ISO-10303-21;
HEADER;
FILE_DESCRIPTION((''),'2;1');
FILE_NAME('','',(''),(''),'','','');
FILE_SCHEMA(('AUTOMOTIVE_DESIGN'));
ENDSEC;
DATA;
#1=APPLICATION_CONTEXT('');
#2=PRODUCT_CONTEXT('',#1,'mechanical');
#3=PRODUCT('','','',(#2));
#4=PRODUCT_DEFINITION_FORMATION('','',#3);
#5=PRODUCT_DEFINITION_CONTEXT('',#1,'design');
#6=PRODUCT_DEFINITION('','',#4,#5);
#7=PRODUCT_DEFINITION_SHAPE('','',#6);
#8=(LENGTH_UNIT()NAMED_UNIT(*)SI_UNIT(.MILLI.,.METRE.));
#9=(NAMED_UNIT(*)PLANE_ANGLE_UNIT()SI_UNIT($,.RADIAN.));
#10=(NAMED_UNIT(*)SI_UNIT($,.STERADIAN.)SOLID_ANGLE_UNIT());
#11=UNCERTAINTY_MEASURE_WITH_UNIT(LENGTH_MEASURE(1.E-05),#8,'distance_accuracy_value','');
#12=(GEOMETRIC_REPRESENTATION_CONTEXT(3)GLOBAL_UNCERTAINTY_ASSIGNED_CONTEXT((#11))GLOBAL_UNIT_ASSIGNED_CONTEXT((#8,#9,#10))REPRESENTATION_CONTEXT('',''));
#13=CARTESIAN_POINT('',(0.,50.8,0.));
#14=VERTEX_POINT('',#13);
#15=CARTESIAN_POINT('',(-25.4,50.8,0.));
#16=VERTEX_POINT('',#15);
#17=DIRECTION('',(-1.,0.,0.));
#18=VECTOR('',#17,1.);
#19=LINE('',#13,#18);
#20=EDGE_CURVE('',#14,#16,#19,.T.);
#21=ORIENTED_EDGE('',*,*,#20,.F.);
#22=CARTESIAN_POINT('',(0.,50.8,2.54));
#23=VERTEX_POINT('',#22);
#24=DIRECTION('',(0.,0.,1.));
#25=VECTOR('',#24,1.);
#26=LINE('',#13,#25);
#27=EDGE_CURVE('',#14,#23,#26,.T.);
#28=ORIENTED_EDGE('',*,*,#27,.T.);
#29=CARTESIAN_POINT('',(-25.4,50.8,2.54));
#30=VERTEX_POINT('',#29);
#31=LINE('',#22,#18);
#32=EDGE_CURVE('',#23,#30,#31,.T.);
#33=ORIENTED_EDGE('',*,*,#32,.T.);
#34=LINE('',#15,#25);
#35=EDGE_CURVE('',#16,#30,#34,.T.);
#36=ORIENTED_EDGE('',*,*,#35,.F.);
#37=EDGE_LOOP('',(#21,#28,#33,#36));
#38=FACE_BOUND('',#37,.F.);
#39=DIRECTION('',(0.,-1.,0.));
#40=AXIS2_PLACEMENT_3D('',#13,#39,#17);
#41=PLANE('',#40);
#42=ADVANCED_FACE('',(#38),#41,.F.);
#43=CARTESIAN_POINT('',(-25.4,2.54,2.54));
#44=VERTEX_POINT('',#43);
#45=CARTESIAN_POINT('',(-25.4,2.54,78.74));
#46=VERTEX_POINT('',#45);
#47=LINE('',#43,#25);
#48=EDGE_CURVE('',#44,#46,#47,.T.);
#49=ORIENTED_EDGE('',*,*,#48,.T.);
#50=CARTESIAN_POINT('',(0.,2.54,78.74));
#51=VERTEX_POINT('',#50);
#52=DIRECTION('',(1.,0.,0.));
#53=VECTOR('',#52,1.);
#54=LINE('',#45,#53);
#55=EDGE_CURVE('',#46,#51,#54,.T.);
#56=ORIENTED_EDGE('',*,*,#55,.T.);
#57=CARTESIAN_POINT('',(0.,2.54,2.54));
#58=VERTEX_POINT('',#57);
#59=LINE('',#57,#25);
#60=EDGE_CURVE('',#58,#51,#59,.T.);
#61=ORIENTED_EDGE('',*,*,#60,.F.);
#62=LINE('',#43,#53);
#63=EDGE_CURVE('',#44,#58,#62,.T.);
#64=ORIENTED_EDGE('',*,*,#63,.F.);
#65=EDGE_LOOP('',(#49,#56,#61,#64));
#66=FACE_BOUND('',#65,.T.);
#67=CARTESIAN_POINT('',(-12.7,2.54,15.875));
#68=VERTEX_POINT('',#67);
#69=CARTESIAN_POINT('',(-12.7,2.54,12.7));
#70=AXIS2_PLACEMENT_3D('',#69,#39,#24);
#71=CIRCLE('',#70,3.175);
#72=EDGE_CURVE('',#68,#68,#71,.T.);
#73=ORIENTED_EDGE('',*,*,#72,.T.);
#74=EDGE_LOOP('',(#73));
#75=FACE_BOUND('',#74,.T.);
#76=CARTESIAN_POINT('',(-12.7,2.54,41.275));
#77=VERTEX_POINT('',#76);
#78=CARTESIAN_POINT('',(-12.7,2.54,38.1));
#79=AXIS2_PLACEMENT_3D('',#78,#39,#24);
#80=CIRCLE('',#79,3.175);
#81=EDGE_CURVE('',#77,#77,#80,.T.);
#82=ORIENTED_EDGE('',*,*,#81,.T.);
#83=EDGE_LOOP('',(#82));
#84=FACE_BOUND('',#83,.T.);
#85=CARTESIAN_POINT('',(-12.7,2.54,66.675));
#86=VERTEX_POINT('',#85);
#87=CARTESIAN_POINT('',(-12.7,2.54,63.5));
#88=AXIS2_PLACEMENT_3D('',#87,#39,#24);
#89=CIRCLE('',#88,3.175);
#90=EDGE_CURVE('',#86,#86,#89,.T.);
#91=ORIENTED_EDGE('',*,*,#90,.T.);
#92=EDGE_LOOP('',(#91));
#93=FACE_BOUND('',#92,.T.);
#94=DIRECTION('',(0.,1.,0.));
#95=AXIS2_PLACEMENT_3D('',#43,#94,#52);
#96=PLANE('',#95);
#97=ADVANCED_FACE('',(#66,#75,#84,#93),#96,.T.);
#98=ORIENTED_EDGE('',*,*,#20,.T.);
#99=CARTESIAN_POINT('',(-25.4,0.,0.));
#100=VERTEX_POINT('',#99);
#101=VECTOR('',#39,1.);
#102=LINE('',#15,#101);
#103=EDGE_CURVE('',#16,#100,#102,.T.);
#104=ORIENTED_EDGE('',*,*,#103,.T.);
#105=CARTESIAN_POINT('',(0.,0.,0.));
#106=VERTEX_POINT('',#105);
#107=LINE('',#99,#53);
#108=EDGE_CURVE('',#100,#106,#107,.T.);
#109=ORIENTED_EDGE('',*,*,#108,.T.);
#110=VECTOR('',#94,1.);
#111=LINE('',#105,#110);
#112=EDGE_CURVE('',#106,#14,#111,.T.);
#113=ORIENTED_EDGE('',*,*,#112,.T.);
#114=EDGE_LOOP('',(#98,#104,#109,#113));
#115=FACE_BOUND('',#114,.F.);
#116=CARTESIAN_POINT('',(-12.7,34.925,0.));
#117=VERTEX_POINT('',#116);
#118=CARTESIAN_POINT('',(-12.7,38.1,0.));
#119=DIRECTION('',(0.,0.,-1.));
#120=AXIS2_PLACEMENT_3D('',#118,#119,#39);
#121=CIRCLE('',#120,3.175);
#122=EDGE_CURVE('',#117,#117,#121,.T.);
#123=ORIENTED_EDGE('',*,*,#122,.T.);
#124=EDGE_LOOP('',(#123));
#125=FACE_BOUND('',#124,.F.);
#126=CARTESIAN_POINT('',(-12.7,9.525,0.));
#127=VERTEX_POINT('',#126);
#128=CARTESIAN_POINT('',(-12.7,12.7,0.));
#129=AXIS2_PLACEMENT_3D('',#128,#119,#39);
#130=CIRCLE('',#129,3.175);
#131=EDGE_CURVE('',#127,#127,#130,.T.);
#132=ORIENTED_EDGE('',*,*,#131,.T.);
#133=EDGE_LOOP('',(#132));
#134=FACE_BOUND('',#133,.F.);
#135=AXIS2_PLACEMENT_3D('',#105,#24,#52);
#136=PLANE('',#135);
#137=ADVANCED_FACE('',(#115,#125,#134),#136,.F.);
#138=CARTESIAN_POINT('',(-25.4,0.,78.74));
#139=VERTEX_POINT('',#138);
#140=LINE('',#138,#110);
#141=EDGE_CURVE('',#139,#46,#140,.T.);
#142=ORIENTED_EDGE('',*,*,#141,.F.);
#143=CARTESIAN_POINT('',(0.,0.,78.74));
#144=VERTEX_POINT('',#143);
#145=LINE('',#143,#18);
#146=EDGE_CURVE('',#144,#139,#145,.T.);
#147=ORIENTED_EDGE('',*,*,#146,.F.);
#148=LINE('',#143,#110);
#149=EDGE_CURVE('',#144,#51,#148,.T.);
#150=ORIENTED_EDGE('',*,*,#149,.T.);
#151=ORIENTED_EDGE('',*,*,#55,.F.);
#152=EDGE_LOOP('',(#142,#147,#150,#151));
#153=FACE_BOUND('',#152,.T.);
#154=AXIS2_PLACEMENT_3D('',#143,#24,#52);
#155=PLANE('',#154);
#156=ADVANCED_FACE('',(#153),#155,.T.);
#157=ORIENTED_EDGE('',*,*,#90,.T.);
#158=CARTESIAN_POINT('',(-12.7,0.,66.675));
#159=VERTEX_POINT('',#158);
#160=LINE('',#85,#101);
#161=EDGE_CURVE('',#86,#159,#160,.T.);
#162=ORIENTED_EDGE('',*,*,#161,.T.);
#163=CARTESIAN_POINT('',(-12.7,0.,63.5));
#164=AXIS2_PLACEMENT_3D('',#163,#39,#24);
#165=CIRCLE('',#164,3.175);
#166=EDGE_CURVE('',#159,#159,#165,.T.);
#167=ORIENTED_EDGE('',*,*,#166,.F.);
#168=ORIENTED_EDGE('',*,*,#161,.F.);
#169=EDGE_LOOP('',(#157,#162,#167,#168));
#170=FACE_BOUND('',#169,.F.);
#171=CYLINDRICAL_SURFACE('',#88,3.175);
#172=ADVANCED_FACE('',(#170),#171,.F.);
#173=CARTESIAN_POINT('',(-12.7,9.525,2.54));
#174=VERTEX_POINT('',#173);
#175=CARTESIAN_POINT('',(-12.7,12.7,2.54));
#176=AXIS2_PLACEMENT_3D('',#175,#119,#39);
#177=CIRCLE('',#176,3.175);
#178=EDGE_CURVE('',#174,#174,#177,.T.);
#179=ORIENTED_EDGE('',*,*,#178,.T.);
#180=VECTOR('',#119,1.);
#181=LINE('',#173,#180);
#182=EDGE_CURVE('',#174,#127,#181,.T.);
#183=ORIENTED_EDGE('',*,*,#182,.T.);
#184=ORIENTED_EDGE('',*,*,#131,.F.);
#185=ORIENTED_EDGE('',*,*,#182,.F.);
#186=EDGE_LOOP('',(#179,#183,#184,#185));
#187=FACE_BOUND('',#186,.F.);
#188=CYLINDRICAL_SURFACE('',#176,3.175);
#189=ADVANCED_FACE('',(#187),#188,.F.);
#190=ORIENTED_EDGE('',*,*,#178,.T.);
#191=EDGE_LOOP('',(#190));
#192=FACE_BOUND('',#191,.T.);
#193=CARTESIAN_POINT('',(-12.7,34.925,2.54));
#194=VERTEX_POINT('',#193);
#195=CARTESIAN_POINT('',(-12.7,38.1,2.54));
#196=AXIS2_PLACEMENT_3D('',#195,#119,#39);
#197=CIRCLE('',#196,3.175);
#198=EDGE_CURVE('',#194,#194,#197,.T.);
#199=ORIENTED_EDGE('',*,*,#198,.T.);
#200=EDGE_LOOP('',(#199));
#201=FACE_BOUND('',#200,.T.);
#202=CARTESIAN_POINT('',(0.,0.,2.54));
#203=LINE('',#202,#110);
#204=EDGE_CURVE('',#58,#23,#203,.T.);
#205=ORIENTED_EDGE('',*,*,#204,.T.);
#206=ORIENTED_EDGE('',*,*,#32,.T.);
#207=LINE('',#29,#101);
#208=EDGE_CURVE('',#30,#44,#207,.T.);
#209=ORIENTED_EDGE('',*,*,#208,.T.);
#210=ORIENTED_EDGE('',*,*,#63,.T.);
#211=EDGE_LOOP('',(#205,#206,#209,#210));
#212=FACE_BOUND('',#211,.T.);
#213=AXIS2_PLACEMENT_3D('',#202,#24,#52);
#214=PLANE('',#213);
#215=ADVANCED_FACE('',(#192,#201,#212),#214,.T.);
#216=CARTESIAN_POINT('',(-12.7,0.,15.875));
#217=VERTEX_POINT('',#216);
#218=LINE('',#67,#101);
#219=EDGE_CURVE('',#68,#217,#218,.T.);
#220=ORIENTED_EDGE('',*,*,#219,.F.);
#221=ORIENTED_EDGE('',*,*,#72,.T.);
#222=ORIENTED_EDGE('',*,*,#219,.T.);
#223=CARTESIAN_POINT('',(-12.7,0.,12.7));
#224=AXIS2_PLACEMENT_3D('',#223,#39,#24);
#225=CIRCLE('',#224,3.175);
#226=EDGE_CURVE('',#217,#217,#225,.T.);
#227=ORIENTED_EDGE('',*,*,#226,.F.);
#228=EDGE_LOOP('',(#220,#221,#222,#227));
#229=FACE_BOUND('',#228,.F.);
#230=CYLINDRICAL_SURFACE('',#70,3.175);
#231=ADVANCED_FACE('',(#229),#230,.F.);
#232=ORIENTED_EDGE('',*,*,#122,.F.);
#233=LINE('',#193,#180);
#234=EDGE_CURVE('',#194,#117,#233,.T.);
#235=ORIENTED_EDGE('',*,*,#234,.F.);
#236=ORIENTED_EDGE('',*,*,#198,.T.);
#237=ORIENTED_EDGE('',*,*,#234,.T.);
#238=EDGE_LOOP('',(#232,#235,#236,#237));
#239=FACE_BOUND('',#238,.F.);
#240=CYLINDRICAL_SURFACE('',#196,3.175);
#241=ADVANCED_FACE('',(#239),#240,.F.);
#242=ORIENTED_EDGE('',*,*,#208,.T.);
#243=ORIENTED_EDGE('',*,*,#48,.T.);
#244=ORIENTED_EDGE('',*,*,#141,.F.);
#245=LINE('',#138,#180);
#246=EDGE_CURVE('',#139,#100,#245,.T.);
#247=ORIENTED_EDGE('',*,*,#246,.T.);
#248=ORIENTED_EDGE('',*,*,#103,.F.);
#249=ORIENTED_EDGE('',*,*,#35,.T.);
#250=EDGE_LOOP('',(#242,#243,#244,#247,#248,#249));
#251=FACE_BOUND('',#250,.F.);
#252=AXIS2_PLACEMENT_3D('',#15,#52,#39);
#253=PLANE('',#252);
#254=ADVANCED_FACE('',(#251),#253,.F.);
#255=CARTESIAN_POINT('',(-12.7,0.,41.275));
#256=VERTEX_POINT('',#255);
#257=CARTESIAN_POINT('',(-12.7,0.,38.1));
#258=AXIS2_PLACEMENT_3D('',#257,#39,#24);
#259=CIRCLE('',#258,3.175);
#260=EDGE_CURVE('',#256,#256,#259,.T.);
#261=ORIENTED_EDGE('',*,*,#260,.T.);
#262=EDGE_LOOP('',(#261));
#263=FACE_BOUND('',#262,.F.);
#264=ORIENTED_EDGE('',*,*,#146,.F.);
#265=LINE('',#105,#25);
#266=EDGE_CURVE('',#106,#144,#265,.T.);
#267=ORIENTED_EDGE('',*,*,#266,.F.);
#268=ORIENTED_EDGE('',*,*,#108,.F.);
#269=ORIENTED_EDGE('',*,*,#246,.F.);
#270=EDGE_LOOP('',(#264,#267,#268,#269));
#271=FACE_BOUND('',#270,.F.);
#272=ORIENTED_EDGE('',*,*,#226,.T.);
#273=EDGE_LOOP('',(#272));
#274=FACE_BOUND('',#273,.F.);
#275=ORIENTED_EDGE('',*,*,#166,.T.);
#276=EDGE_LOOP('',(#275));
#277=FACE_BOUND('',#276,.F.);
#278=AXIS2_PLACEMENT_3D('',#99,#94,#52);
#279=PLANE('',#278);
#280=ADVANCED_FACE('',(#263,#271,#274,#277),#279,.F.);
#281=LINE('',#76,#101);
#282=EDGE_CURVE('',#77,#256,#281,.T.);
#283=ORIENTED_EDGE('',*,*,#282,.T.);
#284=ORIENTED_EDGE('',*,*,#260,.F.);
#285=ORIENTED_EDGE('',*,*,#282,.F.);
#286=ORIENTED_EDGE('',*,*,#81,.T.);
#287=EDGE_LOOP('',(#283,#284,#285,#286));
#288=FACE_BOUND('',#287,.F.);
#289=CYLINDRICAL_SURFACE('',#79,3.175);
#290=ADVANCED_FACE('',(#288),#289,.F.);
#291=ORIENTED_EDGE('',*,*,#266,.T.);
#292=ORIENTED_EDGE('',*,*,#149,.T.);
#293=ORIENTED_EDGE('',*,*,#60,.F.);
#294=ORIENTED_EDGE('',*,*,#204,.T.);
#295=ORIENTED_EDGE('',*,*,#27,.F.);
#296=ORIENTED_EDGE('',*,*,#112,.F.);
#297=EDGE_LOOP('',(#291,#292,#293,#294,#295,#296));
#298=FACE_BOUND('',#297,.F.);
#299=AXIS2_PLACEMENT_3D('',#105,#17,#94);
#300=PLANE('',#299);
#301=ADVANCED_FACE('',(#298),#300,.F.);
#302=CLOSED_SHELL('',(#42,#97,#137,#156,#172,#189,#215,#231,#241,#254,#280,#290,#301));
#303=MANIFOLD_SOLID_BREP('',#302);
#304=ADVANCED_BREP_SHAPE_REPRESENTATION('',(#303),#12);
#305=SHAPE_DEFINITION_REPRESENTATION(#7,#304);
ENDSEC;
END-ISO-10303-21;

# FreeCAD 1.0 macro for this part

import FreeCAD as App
import Part
import Sketcher
from FreeCAD import Vector
Q = App.Units.Quantity


def add_polygon(sketch, points):
    """Adds a closed chain of lines whose ends are joined by coincident constraints."""
    first, n = sketch.GeometryCount, len(points)
    for a, b in zip(points, points[1:] + points[:1]):
        sketch.addGeometry(Part.LineSegment(App.Vector(*a, 0), App.Vector(*b, 0)), False)
    for i in range(n):
        sketch.addConstraint(Sketcher.Constraint("Coincident", first + i, 2, first + (i + 1) % n, 1))

doc = App.newDocument("Part")
body = doc.addObject("PartDesign::Body", "Body")

# Sketch on XY plane
sketch1 = body.newObject("Sketcher::SketchObject", "Sketch")
sketch1.AttachmentSupport = (doc.getObject("XY_Plane"), [""])
sketch1.MapMode = "FlatFace"
add_polygon(sketch1, [(-25, 0), (0, 0), (0, 51), (-25, 51)])  # lines 0-3
sketch1.addConstraint([
    Sketcher.Constraint("Horizontal", 0),
    Sketcher.Constraint("Vertical", 1),
    Sketcher.Constraint("Horizontal", 2),
    Sketcher.Constraint("Vertical", 3),
    Sketcher.Constraint("Coincident", 0, 2, -1, 1),
    Sketcher.Constraint("DistanceX", 0, 1, 0, 2, Q("1 in")),
    Sketcher.Constraint("DistanceY", 1, 1, 1, 2, Q("2 in")),
])
pad1 = body.newObject("PartDesign::Pad", "Pad")
pad1.Profile = sketch1
pad1.Length = Q("0.1 in")

# Sketch on XY plane
sketch2 = body.newObject("Sketcher::SketchObject", "Sketch001")
sketch2.AttachmentSupport = (doc.getObject("XY_Plane"), [""])
sketch2.MapMode = "FlatFace"
sketch2.AttachmentOffset = App.Placement(Vector(0, 0, 0.1 * 25.4), App.Rotation())
add_polygon(sketch2, [(-25.4, 2.5), (-25.4, 0), (0, 0), (0, 2.5)])  # lines 0-3
sketch2.addConstraint([
    Sketcher.Constraint("Vertical", 0),
    Sketcher.Constraint("Horizontal", 1),
    Sketcher.Constraint("Vertical", 2),
    Sketcher.Constraint("Horizontal", 3),
    Sketcher.Constraint("Coincident", 1, 2, -1, 1),
    Sketcher.Constraint("DistanceY", 0, 2, 0, 1, Q("0.1 in")),
    Sketcher.Constraint("DistanceX", 1, 1, 1, 2, Q("1 in")),
])
pad2 = body.newObject("PartDesign::Pad", "Pad001")
pad2.Profile = sketch2
pad2.Length = Q("3 in")

# Sketch on XZ plane
sketch3 = body.newObject("Sketcher::SketchObject", "Sketch002")
sketch3.AttachmentSupport = (doc.getObject("XZ_Plane"), [""])
sketch3.MapMode = "FlatFace"
sketch3.AttachmentOffset = App.Placement(Vector(0, 0, -0.1 * 25.4), App.Rotation())
sketch3.addGeometry(Part.Circle(Vector(-12.7, 12.7, 0), Vector(0, 0, 1), 3.2), False)
sketch3.addConstraint([
    Sketcher.Constraint("Diameter", 0, Q("0.25 in")),
    Sketcher.Constraint("DistanceX", 0, 3, -1, 1, Q("0.5 in")),
    Sketcher.Constraint("DistanceY", -1, 1, 0, 3, Q("0.5 in")),
])
doc.recompute()
hole = body.newObject("PartDesign::Hole", "Hole")
hole.Profile = sketch3
hole.ThreadType = "None"
hole.Diameter = Q("0.25 in")
hole.DepthType = "ThroughAll"
hole.Reversed = True
doc.recompute()

linearpattern = body.newObject("PartDesign::LinearPattern", "LinearPattern")
linearpattern.Originals = [hole]
linearpattern.Direction = (doc.getObject("Z_Axis"), [""])
linearpattern.Mode = "offset"
linearpattern.Offset = Q("1 in")
linearpattern.Occurrences = 3
body.Tip = linearpattern

# Sketch on XY plane
sketch4 = body.newObject("Sketcher::SketchObject", "Sketch003")
sketch4.AttachmentSupport = (doc.getObject("XY_Plane"), [""])
sketch4.MapMode = "FlatFace"
sketch4.AttachmentOffset = App.Placement(Vector(0, 0, 0.1 * 25.4), App.Rotation())
sketch4.addGeometry(Part.Circle(Vector(-12.7, 12.7, 0), Vector(0, 0, 1), 3.2), False)
sketch4.addConstraint([
    Sketcher.Constraint("Diameter", 0, Q("0.25 in")),
    Sketcher.Constraint("DistanceX", 0, 3, -1, 1, Q("0.5 in")),
    Sketcher.Constraint("DistanceY", -1, 1, 0, 3, Q("0.5 in")),
])
doc.recompute()
hole2 = body.newObject("PartDesign::Hole", "Hole001")
hole2.Profile = sketch4
hole2.ThreadType = "None"
hole2.Diameter = Q("0.25 in")
hole2.DepthType = "ThroughAll"
doc.recompute()

linearpattern2 = body.newObject("PartDesign::LinearPattern", "LinearPattern001")
linearpattern2.Originals = [hole2]
linearpattern2.Direction = (doc.getObject("Y_Axis"), [""])
linearpattern2.Mode = "offset"
linearpattern2.Offset = Q("1 in")
linearpattern2.Occurrences = 2
body.Tip = linearpattern2

doc.recompute()
